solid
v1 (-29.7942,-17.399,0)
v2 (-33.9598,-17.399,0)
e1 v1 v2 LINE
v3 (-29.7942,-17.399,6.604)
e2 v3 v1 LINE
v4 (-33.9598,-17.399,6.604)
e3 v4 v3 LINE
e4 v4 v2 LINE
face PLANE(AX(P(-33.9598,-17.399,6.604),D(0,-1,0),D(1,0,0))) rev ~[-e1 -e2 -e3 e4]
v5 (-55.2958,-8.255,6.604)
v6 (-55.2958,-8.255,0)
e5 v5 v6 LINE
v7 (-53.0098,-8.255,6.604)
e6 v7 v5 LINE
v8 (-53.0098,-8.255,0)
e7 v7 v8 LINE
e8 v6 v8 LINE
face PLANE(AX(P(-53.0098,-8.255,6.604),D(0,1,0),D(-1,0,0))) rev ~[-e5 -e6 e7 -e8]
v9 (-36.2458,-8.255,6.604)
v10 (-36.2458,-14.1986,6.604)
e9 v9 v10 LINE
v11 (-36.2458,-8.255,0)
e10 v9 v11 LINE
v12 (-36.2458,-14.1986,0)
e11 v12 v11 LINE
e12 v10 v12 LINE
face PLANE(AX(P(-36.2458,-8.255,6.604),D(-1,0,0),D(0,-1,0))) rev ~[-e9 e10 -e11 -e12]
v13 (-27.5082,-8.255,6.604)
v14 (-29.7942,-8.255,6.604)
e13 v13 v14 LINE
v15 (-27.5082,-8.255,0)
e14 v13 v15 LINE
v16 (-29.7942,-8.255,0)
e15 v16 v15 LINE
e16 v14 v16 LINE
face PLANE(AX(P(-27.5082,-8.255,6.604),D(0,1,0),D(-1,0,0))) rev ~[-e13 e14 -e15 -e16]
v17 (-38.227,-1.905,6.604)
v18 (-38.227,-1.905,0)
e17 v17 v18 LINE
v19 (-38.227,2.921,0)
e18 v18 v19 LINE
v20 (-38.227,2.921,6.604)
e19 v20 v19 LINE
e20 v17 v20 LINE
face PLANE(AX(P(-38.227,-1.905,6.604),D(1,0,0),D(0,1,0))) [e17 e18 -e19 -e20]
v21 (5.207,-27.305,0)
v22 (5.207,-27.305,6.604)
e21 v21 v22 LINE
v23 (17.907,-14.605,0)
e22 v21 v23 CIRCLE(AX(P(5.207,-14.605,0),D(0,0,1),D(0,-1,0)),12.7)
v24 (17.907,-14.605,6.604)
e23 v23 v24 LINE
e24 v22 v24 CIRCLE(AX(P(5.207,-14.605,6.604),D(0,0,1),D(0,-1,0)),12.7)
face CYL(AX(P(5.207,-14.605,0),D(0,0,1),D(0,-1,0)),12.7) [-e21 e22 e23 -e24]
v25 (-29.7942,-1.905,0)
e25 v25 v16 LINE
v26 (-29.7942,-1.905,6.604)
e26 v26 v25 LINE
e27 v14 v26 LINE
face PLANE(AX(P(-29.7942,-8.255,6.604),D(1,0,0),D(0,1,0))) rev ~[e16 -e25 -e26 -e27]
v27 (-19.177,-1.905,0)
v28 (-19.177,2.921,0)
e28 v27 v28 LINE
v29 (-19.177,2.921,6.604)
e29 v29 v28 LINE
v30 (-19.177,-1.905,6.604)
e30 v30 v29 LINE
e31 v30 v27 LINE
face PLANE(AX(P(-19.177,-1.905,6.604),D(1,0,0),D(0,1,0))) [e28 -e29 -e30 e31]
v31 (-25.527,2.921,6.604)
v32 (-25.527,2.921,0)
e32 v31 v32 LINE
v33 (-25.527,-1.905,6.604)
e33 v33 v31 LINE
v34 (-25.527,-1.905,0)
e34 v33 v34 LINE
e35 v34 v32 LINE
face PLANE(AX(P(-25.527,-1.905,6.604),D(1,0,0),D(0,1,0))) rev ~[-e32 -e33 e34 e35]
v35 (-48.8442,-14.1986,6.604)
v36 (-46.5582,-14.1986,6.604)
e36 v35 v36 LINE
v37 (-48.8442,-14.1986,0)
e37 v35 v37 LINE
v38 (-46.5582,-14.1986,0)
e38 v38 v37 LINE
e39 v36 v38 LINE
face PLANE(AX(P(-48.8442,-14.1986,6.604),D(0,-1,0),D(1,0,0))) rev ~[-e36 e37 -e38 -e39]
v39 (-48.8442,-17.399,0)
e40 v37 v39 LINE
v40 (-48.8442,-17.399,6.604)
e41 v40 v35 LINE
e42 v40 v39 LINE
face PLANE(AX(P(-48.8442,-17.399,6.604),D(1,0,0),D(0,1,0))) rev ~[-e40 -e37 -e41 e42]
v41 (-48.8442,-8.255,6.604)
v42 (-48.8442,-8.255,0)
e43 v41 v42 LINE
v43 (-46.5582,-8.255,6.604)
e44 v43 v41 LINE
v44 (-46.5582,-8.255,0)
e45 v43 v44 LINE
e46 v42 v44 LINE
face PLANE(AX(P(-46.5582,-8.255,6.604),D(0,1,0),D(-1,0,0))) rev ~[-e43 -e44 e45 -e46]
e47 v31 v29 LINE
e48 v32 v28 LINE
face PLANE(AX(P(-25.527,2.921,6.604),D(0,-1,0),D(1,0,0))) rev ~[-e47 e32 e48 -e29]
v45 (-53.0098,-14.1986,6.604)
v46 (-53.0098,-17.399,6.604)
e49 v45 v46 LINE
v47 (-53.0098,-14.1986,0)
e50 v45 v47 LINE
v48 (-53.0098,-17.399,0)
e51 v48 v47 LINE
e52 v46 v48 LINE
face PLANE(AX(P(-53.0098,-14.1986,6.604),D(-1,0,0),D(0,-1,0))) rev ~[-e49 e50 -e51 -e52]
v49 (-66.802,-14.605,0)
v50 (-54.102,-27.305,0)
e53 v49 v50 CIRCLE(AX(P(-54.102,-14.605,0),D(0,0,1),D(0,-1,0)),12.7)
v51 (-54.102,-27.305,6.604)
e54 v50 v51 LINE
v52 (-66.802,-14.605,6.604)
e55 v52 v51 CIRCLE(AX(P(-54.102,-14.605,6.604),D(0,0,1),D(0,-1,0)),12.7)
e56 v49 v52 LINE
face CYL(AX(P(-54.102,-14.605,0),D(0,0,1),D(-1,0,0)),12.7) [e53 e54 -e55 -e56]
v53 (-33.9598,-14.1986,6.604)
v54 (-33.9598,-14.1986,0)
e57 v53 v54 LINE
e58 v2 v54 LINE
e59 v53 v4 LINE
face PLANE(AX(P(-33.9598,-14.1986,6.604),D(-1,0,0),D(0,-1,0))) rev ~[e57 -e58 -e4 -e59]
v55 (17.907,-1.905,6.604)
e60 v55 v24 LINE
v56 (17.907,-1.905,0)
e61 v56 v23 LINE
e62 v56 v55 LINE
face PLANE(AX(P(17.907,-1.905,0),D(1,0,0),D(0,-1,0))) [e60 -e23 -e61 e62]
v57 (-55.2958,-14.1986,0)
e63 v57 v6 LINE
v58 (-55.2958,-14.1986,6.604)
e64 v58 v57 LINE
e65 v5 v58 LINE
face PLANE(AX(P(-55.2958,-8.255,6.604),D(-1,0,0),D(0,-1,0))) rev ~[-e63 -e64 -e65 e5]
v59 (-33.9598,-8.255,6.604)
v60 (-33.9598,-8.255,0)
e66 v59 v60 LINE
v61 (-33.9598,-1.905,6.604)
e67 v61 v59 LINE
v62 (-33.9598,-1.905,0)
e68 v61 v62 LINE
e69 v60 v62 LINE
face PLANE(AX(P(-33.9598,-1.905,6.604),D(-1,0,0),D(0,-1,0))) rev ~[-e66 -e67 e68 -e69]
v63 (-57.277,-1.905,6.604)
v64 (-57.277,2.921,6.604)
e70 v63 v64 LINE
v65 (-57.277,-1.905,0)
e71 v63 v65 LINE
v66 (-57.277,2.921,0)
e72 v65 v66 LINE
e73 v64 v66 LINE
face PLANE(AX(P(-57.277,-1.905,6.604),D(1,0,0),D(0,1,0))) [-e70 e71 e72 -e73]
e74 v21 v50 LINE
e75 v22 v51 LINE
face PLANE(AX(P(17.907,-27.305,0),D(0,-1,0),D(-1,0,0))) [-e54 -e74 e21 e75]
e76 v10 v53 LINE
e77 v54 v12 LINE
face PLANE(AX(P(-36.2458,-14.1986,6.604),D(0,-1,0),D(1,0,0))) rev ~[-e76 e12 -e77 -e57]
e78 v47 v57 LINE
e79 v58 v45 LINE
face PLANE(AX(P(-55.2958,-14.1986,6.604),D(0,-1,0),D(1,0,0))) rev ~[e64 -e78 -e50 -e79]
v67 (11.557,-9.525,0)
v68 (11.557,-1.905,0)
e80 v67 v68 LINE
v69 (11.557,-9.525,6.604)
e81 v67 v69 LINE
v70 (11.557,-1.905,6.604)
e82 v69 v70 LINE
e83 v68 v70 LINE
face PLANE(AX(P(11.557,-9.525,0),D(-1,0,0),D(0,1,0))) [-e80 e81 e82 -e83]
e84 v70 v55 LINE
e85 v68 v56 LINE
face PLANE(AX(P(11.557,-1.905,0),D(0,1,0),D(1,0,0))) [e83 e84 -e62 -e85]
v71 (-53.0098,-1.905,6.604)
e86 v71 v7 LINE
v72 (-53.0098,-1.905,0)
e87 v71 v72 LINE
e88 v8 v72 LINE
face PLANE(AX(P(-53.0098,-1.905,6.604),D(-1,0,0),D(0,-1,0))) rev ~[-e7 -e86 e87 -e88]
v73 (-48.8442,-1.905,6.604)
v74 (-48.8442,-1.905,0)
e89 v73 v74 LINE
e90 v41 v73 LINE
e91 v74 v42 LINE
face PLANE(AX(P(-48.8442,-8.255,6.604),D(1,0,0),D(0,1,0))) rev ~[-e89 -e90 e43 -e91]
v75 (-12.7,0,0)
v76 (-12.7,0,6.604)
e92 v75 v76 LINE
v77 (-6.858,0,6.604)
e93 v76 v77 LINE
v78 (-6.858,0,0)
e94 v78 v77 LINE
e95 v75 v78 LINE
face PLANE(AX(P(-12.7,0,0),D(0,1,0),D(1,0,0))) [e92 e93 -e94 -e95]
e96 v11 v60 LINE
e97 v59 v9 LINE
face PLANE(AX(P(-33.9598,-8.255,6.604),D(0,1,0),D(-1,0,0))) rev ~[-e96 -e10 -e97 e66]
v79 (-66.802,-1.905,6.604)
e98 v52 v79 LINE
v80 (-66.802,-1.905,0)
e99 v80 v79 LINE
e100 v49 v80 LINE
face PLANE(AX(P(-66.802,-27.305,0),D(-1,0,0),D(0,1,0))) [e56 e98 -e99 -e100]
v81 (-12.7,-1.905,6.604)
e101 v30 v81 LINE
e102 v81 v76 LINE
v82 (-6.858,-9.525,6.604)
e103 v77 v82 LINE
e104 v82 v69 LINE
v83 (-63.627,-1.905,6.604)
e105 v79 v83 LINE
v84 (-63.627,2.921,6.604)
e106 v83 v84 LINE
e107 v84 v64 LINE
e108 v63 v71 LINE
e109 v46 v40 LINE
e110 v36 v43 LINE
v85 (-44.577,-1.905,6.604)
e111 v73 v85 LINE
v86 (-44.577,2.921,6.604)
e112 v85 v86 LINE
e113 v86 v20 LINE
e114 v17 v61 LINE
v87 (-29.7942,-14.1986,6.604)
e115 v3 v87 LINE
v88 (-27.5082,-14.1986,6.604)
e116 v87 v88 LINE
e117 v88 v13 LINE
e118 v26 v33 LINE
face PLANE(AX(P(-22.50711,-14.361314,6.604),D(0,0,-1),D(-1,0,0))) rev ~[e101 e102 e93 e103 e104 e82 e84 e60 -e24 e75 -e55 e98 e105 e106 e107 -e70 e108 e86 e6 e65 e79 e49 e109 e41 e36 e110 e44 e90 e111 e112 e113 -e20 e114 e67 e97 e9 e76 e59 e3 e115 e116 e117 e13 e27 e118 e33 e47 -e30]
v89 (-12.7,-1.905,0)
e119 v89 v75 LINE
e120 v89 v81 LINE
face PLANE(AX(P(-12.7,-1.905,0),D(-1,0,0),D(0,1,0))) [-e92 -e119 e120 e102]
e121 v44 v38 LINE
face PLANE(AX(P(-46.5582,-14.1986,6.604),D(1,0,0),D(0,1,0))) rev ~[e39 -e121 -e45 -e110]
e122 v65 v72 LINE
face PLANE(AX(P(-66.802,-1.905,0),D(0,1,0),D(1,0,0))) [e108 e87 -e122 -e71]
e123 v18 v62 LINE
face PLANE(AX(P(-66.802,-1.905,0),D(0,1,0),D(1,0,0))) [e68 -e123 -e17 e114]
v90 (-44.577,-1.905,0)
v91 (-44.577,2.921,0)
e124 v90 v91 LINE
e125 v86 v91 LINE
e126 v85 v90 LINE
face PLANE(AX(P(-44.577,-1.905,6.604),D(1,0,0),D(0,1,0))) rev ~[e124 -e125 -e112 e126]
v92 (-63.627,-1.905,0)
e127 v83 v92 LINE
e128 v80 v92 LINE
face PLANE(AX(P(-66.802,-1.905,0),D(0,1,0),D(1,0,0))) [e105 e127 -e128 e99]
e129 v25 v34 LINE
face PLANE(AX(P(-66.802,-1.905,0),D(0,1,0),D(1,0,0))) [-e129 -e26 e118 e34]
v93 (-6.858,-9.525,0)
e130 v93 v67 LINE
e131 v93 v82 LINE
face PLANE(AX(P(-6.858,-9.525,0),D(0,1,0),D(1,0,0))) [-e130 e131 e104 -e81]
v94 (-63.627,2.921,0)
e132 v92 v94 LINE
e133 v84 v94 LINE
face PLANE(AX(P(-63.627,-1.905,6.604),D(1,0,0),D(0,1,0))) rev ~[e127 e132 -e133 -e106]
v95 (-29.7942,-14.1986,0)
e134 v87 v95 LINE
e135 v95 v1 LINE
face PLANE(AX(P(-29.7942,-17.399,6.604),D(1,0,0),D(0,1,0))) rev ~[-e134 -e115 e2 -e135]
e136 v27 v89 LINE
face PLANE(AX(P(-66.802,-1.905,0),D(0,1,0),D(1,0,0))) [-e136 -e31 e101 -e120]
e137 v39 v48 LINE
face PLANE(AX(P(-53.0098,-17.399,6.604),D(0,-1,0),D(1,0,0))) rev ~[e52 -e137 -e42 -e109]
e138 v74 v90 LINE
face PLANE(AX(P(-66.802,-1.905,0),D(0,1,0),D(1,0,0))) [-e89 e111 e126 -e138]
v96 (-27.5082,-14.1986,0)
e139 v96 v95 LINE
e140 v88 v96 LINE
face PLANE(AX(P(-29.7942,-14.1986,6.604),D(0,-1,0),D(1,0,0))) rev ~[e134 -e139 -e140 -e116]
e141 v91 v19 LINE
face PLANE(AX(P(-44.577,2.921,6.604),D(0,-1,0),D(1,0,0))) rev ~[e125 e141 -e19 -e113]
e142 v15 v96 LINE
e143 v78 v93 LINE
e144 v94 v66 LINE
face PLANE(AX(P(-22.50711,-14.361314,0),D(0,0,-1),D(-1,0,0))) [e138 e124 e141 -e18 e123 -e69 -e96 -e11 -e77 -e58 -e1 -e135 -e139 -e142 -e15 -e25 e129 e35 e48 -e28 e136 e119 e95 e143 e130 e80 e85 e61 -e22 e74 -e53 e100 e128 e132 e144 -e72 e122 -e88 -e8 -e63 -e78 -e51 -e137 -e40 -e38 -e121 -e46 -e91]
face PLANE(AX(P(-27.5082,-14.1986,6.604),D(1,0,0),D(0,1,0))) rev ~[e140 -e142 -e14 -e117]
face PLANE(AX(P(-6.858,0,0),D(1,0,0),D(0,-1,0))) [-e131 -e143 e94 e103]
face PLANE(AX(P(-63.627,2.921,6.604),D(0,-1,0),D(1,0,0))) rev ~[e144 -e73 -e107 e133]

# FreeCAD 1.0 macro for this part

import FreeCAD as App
import Part
import Sketcher

V = App.Vector
Q = App.Units.Quantity


def edges_at(feature, points):
    """Names of the edges that pass closest to the given points."""
    edges = feature.Shape.Edges
    near = lambda p: min(range(len(edges)), key=lambda i: edges[i].distToShape(Part.Vertex(*p))[0])
    return sorted({f"Edge{near(p) + 1}" for p in points})

doc = App.newDocument("Part")
body = doc.addObject("PartDesign::Body", "Body")

sketch1 = body.newObject("Sketcher::SketchObject", "Sketch")
sketch1.AttachmentSupport = (doc.getObject("XY_Plane"), [""])
sketch1.MapMode = "FlatFace"
sketch1.addGeometry([
    Part.LineSegment(V(-6.9, -9.5, 0), V(-6.9, 0, 0)),
    Part.LineSegment(V(-6.9, 0, 0), V(-12.7, 0, 0)),
    Part.LineSegment(V(-12.7, 0, 0), V(-12.7, -1.9, 0)),
    Part.LineSegment(V(-12.7, -1.9, 0), V(-66.8, -1.9, 0)),
    Part.LineSegment(V(-66.8, -1.9, 0), V(-66.8, -27.3, 0)),
    Part.LineSegment(V(-66.8, -27.3, 0), V(17.9, -27.3, 0)),
    Part.LineSegment(V(17.9, -27.3, 0), V(17.9, -1.9, 0)),
    Part.LineSegment(V(17.9, -1.9, 0), V(11.6, -1.9, 0)),
    Part.LineSegment(V(11.6, -1.9, 0), V(11.6, -9.5, 0)),
    Part.LineSegment(V(11.6, -9.5, 0), V(-6.9, -9.5, 0)),
], False)
sketch1.addConstraint([
    Sketcher.Constraint("Coincident", 0, 2, 1, 1),
    Sketcher.Constraint("Coincident", 1, 2, 2, 1),
    Sketcher.Constraint("Coincident", 2, 2, 3, 1),
    Sketcher.Constraint("Coincident", 3, 2, 4, 1),
    Sketcher.Constraint("Coincident", 4, 2, 5, 1),
    Sketcher.Constraint("Coincident", 5, 2, 6, 1),
    Sketcher.Constraint("Coincident", 6, 2, 7, 1),
    Sketcher.Constraint("Coincident", 7, 2, 8, 1),
    Sketcher.Constraint("Coincident", 8, 2, 9, 1),
    Sketcher.Constraint("Coincident", 9, 2, 0, 1),
    Sketcher.Constraint("Vertical", 0),
    Sketcher.Constraint("Horizontal", 1),
    Sketcher.Constraint("Vertical", 2),
    Sketcher.Constraint("Horizontal", 3),
    Sketcher.Constraint("Vertical", 4),
    Sketcher.Constraint("Horizontal", 5),
    Sketcher.Constraint("Vertical", 6),
    Sketcher.Constraint("Horizontal", 7),
    Sketcher.Constraint("Vertical", 8),
    Sketcher.Constraint("Horizontal", 9),
    Sketcher.Constraint("PointOnObject", 0, 2, -1),
    Sketcher.Constraint("Horizontal", 3, 2, 6, 2),
    Sketcher.Constraint("DistanceY", 4, 2, 4, 1, Q("1 in")),
    Sketcher.Constraint("DistanceY", 8, 2, 8, 1, Q("0.3 in")),
    Sketcher.Constraint("DistanceX", 1, 2, 1, 1, Q("0.23 in")),
    Sketcher.Constraint("DistanceX", 3, 2, 3, 1, Q("2.13 in")),
    Sketcher.Constraint("DistanceX", 7, 2, 7, 1, Q("0.25 in")),
    Sketcher.Constraint("DistanceX", 1, 2, -1, 1, Q("0.5 in")),
    Sketcher.Constraint("DistanceX", 5, 1, 5, 2, Q("3.335 in")),
    Sketcher.Constraint("DistanceY", 0, 1, 0, 2, Q("0.375 in")),
])
pad1 = body.newObject("PartDesign::Pad", "Pad")
pad1.Profile = sketch1
pad1.Length = Q("0.26 in")

sketch2 = body.newObject("Sketcher::SketchObject", "Sketch001")
sketch2.AttachmentSupport = (doc.getObject("XY_Plane"), [""])
sketch2.MapMode = "FlatFace"
sketch2.AttachmentOffset = App.Placement(V(0, 0, 0.26 * 25.4), App.Rotation())
sketch2.addGeometry([
    Part.LineSegment(V(-53, -1.9, 0), V(-53, -8.3, 0)),
    Part.LineSegment(V(-53, -8.3, 0), V(-55.3, -8.3, 0)),
    Part.LineSegment(V(-55.3, -8.3, 0), V(-55.3, -14.2, 0)),
    Part.LineSegment(V(-55.3, -14.2, 0), V(-53, -14.2, 0)),
    Part.LineSegment(V(-53, -14.2, 0), V(-53, -17.4, 0)),
    Part.LineSegment(V(-53, -17.4, 0), V(-48.8, -17.4, 0)),
    Part.LineSegment(V(-48.8, -17.4, 0), V(-48.8, -14.2, 0)),
    Part.LineSegment(V(-48.8, -14.2, 0), V(-46.6, -14.2, 0)),
    Part.LineSegment(V(-46.6, -14.2, 0), V(-46.6, -8.3, 0)),
    Part.LineSegment(V(-46.6, -8.3, 0), V(-48.8, -8.3, 0)),
    Part.LineSegment(V(-48.8, -8.3, 0), V(-48.8, -1.9, 0)),
    Part.LineSegment(V(-48.8, -1.9, 0), V(-53, -1.9, 0)),
    Part.LineSegment(V(-34, -1.9, 0), V(-34, -8.3, 0)),
    Part.LineSegment(V(-34, -8.3, 0), V(-36.2, -8.3, 0)),
    Part.LineSegment(V(-36.2, -8.3, 0), V(-36.2, -14.2, 0)),
    Part.LineSegment(V(-36.2, -14.2, 0), V(-34, -14.2, 0)),
    Part.LineSegment(V(-34, -14.2, 0), V(-34, -17.4, 0)),
    Part.LineSegment(V(-34, -17.4, 0), V(-29.8, -17.4, 0)),
    Part.LineSegment(V(-29.8, -17.4, 0), V(-29.8, -14.2, 0)),
    Part.LineSegment(V(-29.8, -14.2, 0), V(-27.5, -14.2, 0)),
    Part.LineSegment(V(-27.5, -14.2, 0), V(-27.5, -8.3, 0)),
    Part.LineSegment(V(-27.5, -8.3, 0), V(-29.8, -8.3, 0)),
    Part.LineSegment(V(-29.8, -8.3, 0), V(-29.8, -1.9, 0)),
    Part.LineSegment(V(-29.8, -1.9, 0), V(-34, -1.9, 0)),
], False)
sketch2.addConstraint([
    Sketcher.Constraint("Coincident", 0, 2, 1, 1),
    Sketcher.Constraint("Coincident", 1, 2, 2, 1),
    Sketcher.Constraint("Coincident", 2, 2, 3, 1),
    Sketcher.Constraint("Coincident", 3, 2, 4, 1),
    Sketcher.Constraint("Coincident", 4, 2, 5, 1),
    Sketcher.Constraint("Coincident", 5, 2, 6, 1),
    Sketcher.Constraint("Coincident", 6, 2, 7, 1),
    Sketcher.Constraint("Coincident", 7, 2, 8, 1),
    Sketcher.Constraint("Coincident", 8, 2, 9, 1),
    Sketcher.Constraint("Coincident", 9, 2, 10, 1),
    Sketcher.Constraint("Coincident", 10, 2, 11, 1),
    Sketcher.Constraint("Coincident", 11, 2, 0, 1),
    Sketcher.Constraint("Coincident", 12, 2, 13, 1),
    Sketcher.Constraint("Coincident", 13, 2, 14, 1),
    Sketcher.Constraint("Coincident", 14, 2, 15, 1),
    Sketcher.Constraint("Coincident", 15, 2, 16, 1),
    Sketcher.Constraint("Coincident", 16, 2, 17, 1),
    Sketcher.Constraint("Coincident", 17, 2, 18, 1),
    Sketcher.Constraint("Coincident", 18, 2, 19, 1),
    Sketcher.Constraint("Coincident", 19, 2, 20, 1),
    Sketcher.Constraint("Coincident", 20, 2, 21, 1),
    Sketcher.Constraint("Coincident", 21, 2, 22, 1),
    Sketcher.Constraint("Coincident", 22, 2, 23, 1),
    Sketcher.Constraint("Coincident", 23, 2, 12, 1),
    Sketcher.Constraint("Vertical", 0),
    Sketcher.Constraint("Horizontal", 1),
    Sketcher.Constraint("Vertical", 2),
    Sketcher.Constraint("Horizontal", 3),
    Sketcher.Constraint("Vertical", 4),
    Sketcher.Constraint("Horizontal", 5),
    Sketcher.Constraint("Vertical", 6),
    Sketcher.Constraint("Horizontal", 7),
    Sketcher.Constraint("Vertical", 8),
    Sketcher.Constraint("Horizontal", 9),
    Sketcher.Constraint("Vertical", 10),
    Sketcher.Constraint("Horizontal", 11),
    Sketcher.Constraint("Vertical", 12),
    Sketcher.Constraint("Horizontal", 13),
    Sketcher.Constraint("Vertical", 14),
    Sketcher.Constraint("Horizontal", 15),
    Sketcher.Constraint("Vertical", 16),
    Sketcher.Constraint("Horizontal", 17),
    Sketcher.Constraint("Vertical", 18),
    Sketcher.Constraint("Horizontal", 19),
    Sketcher.Constraint("Vertical", 20),
    Sketcher.Constraint("Horizontal", 21),
    Sketcher.Constraint("Vertical", 22),
    Sketcher.Constraint("Horizontal", 23),
    Sketcher.Constraint("Horizontal", 3, 2, 6, 2),
    Sketcher.Constraint("Horizontal", 1, 2, 8, 2),
    Sketcher.Constraint("Horizontal", 9, 2, 12, 2),
    Sketcher.Constraint("Horizontal", 7, 2, 14, 2),
    Sketcher.Constraint("Horizontal", 5, 2, 16, 2),
    Sketcher.Constraint("Horizontal", 15, 2, 18, 2),
    Sketcher.Constraint("Horizontal", 13, 2, 20, 2),
    Sketcher.Constraint("Horizontal", 11, 2, 22, 2),
    Sketcher.Constraint("Vertical", 0, 2, 3, 2),
    Sketcher.Constraint("Vertical", 6, 2, 9, 2),
    Sketcher.Constraint("Vertical", 12, 2, 15, 2),
    Sketcher.Constraint("Vertical", 18, 2, 21, 2),
    Sketcher.Constraint("Equal", 3, 7),
    Sketcher.Constraint("Equal", 9, 13),
    Sketcher.Constraint("Equal", 11, 17),
    Sketcher.Constraint("Equal", 15, 19),
    Sketcher.Constraint("DistanceX", 1, 2, 1, 1, Q("0.09 in")),
    Sketcher.Constraint("DistanceY", 0, 2, 0, 1, Q("0.25 in")),
    Sketcher.Constraint("DistanceX", 5, 1, 5, 2, Q("0.164 in")),
    Sketcher.Constraint("DistanceY", 2, 2, 2, 1, Q("0.234 in")),
    Sketcher.Constraint("DistanceY", 4, 2, 4, 1, Q("0.126 in")),
    Sketcher.Constraint("DistanceX", 0, 2, -1, 1, Q("2.087 in")),
    Sketcher.Constraint("DistanceY", 0, 2, -1, 1, Q("0.325 in")),
    Sketcher.Constraint("DistanceX", 12, 2, -1, 1, Q("1.337 in")),
])
pocket1 = body.newObject("PartDesign::Pocket", "Pocket")
pocket1.Profile = sketch2
pocket1.Type = "ThroughAll"

sketch3 = body.newObject("Sketcher::SketchObject", "Sketch002")
sketch3.AttachmentSupport = (doc.getObject("XY_Plane"), [""])
sketch3.MapMode = "FlatFace"
sketch3.AttachmentOffset = App.Placement(V(0, 0, 0.26 * 25.4), App.Rotation())
sketch3.addGeometry([
    Part.LineSegment(V(-63.6, 2.9, 0), V(-63.6, -1.9, 0)),
    Part.LineSegment(V(-63.6, -1.9, 0), V(-57.3, -1.9, 0)),
    Part.LineSegment(V(-57.3, -1.9, 0), V(-57.3, 2.9, 0)),
    Part.LineSegment(V(-57.3, 2.9, 0), V(-63.6, 2.9, 0)),
    Part.LineSegment(V(-44.6, 2.9, 0), V(-44.6, -1.9, 0)),
    Part.LineSegment(V(-44.6, -1.9, 0), V(-38.2, -1.9, 0)),
    Part.LineSegment(V(-38.2, -1.9, 0), V(-38.2, 2.9, 0)),
    Part.LineSegment(V(-38.2, 2.9, 0), V(-44.6, 2.9, 0)),
    Part.LineSegment(V(-25.5, 2.9, 0), V(-25.5, -1.9, 0)),
    Part.LineSegment(V(-25.5, -1.9, 0), V(-19.2, -1.9, 0)),
    Part.LineSegment(V(-19.2, -1.9, 0), V(-19.2, 2.9, 0)),
    Part.LineSegment(V(-19.2, 2.9, 0), V(-25.5, 2.9, 0)),
], False)
sketch3.addConstraint([
    Sketcher.Constraint("Coincident", 0, 2, 1, 1),
    Sketcher.Constraint("Coincident", 1, 2, 2, 1),
    Sketcher.Constraint("Coincident", 2, 2, 3, 1),
    Sketcher.Constraint("Coincident", 3, 2, 0, 1),
    Sketcher.Constraint("Coincident", 4, 2, 5, 1),
    Sketcher.Constraint("Coincident", 5, 2, 6, 1),
    Sketcher.Constraint("Coincident", 6, 2, 7, 1),
    Sketcher.Constraint("Coincident", 7, 2, 4, 1),
    Sketcher.Constraint("Coincident", 8, 2, 9, 1),
    Sketcher.Constraint("Coincident", 9, 2, 10, 1),
    Sketcher.Constraint("Coincident", 10, 2, 11, 1),
    Sketcher.Constraint("Coincident", 11, 2, 8, 1),
    Sketcher.Constraint("Vertical", 0),
    Sketcher.Constraint("Horizontal", 1),
    Sketcher.Constraint("Vertical", 2),
    Sketcher.Constraint("Horizontal", 3),
    Sketcher.Constraint("Vertical", 4),
    Sketcher.Constraint("Horizontal", 5),
    Sketcher.Constraint("Vertical", 6),
    Sketcher.Constraint("Horizontal", 7),
    Sketcher.Constraint("Vertical", 8),
    Sketcher.Constraint("Horizontal", 9),
    Sketcher.Constraint("Vertical", 10),
    Sketcher.Constraint("Horizontal", 11),
    Sketcher.Constraint("Horizontal", 1, 2, 4, 2),
    Sketcher.Constraint("Horizontal", 3, 2, 6, 2),
    Sketcher.Constraint("Horizontal", 5, 2, 8, 2),
    Sketcher.Constraint("Horizontal", 7, 2, 10, 2),
    Sketcher.Constraint("Equal", 3, 5),
    Sketcher.Constraint("Equal", 7, 9),
    Sketcher.Constraint("DistanceX", 0, 2, 5, 2, Q("1 in")),
    Sketcher.Constraint("DistanceX", 4, 2, 9, 2, Q("1 in")),
    Sketcher.Constraint("DistanceX", 1, 1, 1, 2, Q("0.25 in")),
    Sketcher.Constraint("DistanceY", 0, 2, 0, 1, Q("0.19 in")),
    Sketcher.Constraint("DistanceX", 0, 2, -1, 1, Q("2.505 in")),
    Sketcher.Constraint("DistanceY", 0, 2, -1, 1, Q("0.075 in")),
])
pad2 = body.newObject("PartDesign::Pad", "Pad001")
pad2.Profile = sketch3
pad2.Length = Q("0.26 in")
pad2.Reversed = True
doc.recompute()

fillet = body.newObject("PartDesign::Fillet", "Fillet")
fillet.Base = (pad2, edges_at(pad2, [(17.907, -27.305, 3.302), (-66.802, -27.305, 3.302)]))
fillet.Radius = Q("0.5 in")

doc.recompute()
